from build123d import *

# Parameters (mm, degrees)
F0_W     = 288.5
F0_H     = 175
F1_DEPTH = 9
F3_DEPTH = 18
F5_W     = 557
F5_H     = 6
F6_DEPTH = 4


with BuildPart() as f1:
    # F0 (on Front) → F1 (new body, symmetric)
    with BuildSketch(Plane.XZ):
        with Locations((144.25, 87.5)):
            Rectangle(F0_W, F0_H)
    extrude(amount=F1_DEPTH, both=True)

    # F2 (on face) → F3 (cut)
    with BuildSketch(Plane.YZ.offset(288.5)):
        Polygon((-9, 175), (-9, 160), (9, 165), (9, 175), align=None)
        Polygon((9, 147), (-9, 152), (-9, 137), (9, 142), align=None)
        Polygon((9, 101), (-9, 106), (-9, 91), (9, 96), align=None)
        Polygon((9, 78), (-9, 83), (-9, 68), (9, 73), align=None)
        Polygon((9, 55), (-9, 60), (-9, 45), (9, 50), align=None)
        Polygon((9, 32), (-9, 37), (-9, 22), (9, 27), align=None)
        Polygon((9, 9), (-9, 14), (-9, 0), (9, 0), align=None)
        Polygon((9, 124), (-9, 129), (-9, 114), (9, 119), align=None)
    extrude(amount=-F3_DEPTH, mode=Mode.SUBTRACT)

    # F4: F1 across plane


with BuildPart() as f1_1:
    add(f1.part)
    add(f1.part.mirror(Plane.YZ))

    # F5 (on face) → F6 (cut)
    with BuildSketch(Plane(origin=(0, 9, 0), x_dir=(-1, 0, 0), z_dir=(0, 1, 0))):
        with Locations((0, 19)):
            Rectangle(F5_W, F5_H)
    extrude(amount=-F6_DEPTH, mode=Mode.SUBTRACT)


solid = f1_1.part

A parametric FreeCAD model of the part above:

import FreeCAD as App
import Part
import Sketcher

V = App.Vector
Q = App.Units.Quantity

doc = App.newDocument("Part")
body = doc.addObject("PartDesign::Body", "Body")

# Sketch on XZ plane
sketch1 = body.newObject("Sketcher::SketchObject", "Sketch")
sketch1.AttachmentSupport = (doc.getObject("XZ_Plane"), [""])
sketch1.MapMode = "FlatFace"
sketch1.addGeometry(Part.LineSegment(V(0, 175, 0), V(0, 0, 0)), False)
sketch1.addGeometry(Part.LineSegment(V(0, 0, 0), V(288, 0, 0)), False)
sketch1.addGeometry(Part.LineSegment(V(288, 0, 0), V(288, 175, 0)), False)
sketch1.addGeometry(Part.LineSegment(V(288, 175, 0), V(0, 175, 0)), False)
sketch1.addConstraint(Sketcher.Constraint("Coincident", 0, 2, 1, 1))
sketch1.addConstraint(Sketcher.Constraint("Coincident", 1, 2, 2, 1))
sketch1.addConstraint(Sketcher.Constraint("Coincident", 2, 2, 3, 1))
sketch1.addConstraint(Sketcher.Constraint("Coincident", 3, 2, 0, 1))
sketch1.addConstraint(Sketcher.Constraint("Vertical", 0))
sketch1.addConstraint(Sketcher.Constraint("Horizontal", 1))
sketch1.addConstraint(Sketcher.Constraint("Vertical", 2))
sketch1.addConstraint(Sketcher.Constraint("Horizontal", 3))
sketch1.addConstraint(Sketcher.Constraint("Coincident", 0, 2, -1, 1))
sketch1.addConstraint(Sketcher.Constraint("DistanceY", 0, 2, 0, 1, Q("175 mm")))
sketch1.addConstraint(Sketcher.Constraint("DistanceX", 1, 1, 1, 2, Q("288.5 mm")))
pad1 = body.newObject("PartDesign::Pad", "Pad")
pad1.Profile = sketch1
pad1.Length = 18
pad1.Midplane = True

# Sketch on YZ plane
sketch2 = body.newObject("Sketcher::SketchObject", "Sketch001")
sketch2.AttachmentSupport = (doc.getObject("YZ_Plane"), [""])
sketch2.MapMode = "FlatFace"
sketch2.AttachmentOffset = App.Placement(V(0, 0, 288.5), App.Rotation())
sketch2.addGeometry(Part.LineSegment(V(-9, 175, 0), V(-9, 160, 0)), False)
sketch2.addGeometry(Part.LineSegment(V(-9, 160, 0), V(9, 165, 0)), False)
sketch2.addGeometry(Part.LineSegment(V(9, 165, 0), V(9, 175, 0)), False)
sketch2.addGeometry(Part.LineSegment(V(9, 175, 0), V(-9, 175, 0)), False)
sketch2.addGeometry(Part.LineSegment(V(9, 147, 0), V(-9, 152, 0)), False)
sketch2.addGeometry(Part.LineSegment(V(-9, 152, 0), V(-9, 137, 0)), False)
sketch2.addGeometry(Part.LineSegment(V(-9, 137, 0), V(9, 142, 0)), False)
sketch2.addGeometry(Part.LineSegment(V(9, 142, 0), V(9, 147, 0)), False)
sketch2.addGeometry(Part.LineSegment(V(9, 101, 0), V(-9, 106, 0)), False)
sketch2.addGeometry(Part.LineSegment(V(-9, 106, 0), V(-9, 91, 0)), False)
sketch2.addGeometry(Part.LineSegment(V(-9, 91, 0), V(9, 96, 0)), False)
sketch2.addGeometry(Part.LineSegment(V(9, 96, 0), V(9, 101, 0)), False)
sketch2.addGeometry(Part.LineSegment(V(9, 78, 0), V(-9, 83, 0)), False)
sketch2.addGeometry(Part.LineSegment(V(-9, 83, 0), V(-9, 68, 0)), False)
sketch2.addGeometry(Part.LineSegment(V(-9, 68, 0), V(9, 73, 0)), False)
sketch2.addGeometry(Part.LineSegment(V(9, 73, 0), V(9, 78, 0)), False)
sketch2.addGeometry(Part.LineSegment(V(9, 55, 0), V(-9, 60, 0)), False)
sketch2.addGeometry(Part.LineSegment(V(-9, 60, 0), V(-9, 45, 0)), False)
sketch2.addGeometry(Part.LineSegment(V(-9, 45, 0), V(9, 50, 0)), False)
sketch2.addGeometry(Part.LineSegment(V(9, 50, 0), V(9, 55, 0)), False)
sketch2.addGeometry(Part.LineSegment(V(9, 32, 0), V(-9, 37, 0)), False)
sketch2.addGeometry(Part.LineSegment(V(-9, 37, 0), V(-9, 22, 0)), False)
sketch2.addGeometry(Part.LineSegment(V(-9, 22, 0), V(9, 27, 0)), False)
sketch2.addGeometry(Part.LineSegment(V(9, 27, 0), V(9, 32, 0)), False)
sketch2.addGeometry(Part.LineSegment(V(9, 9, 0), V(-9, 14, 0)), False)
sketch2.addGeometry(Part.LineSegment(V(-9, 14, 0), V(-9, 0, 0)), False)
sketch2.addGeometry(Part.LineSegment(V(-9, 0, 0), V(9, 0, 0)), False)
sketch2.addGeometry(Part.LineSegment(V(9, 0, 0), V(9, 9, 0)), False)
sketch2.addGeometry(Part.LineSegment(V(9, 124, 0), V(-9, 129, 0)), False)
sketch2.addGeometry(Part.LineSegment(V(-9, 129, 0), V(-9, 114, 0)), False)
sketch2.addGeometry(Part.LineSegment(V(-9, 114, 0), V(9, 119, 0)), False)
sketch2.addGeometry(Part.LineSegment(V(9, 119, 0), V(9, 124, 0)), False)
sketch2.addConstraint(Sketcher.Constraint("Coincident", 0, 2, 1, 1))
sketch2.addConstraint(Sketcher.Constraint("Coincident", 1, 2, 2, 1))
sketch2.addConstraint(Sketcher.Constraint("Coincident", 2, 2, 3, 1))
sketch2.addConstraint(Sketcher.Constraint("Coincident", 3, 2, 0, 1))
sketch2.addConstraint(Sketcher.Constraint("Coincident", 4, 2, 5, 1))
sketch2.addConstraint(Sketcher.Constraint("Coincident", 5, 2, 6, 1))
sketch2.addConstraint(Sketcher.Constraint("Coincident", 6, 2, 7, 1))
sketch2.addConstraint(Sketcher.Constraint("Coincident", 7, 2, 4, 1))
sketch2.addConstraint(Sketcher.Constraint("Coincident", 8, 2, 9, 1))
sketch2.addConstraint(Sketcher.Constraint("Coincident", 9, 2, 10, 1))
sketch2.addConstraint(Sketcher.Constraint("Coincident", 10, 2, 11, 1))
sketch2.addConstraint(Sketcher.Constraint("Coincident", 11, 2, 8, 1))
sketch2.addConstraint(Sketcher.Constraint("Coincident", 12, 2, 13, 1))
sketch2.addConstraint(Sketcher.Constraint("Coincident", 13, 2, 14, 1))
sketch2.addConstraint(Sketcher.Constraint("Coincident", 14, 2, 15, 1))
sketch2.addConstraint(Sketcher.Constraint("Coincident", 15, 2, 12, 1))
sketch2.addConstraint(Sketcher.Constraint("Coincident", 16, 2, 17, 1))
sketch2.addConstraint(Sketcher.Constraint("Coincident", 17, 2, 18, 1))
sketch2.addConstraint(Sketcher.Constraint("Coincident", 18, 2, 19, 1))
sketch2.addConstraint(Sketcher.Constraint("Coincident", 19, 2, 16, 1))
sketch2.addConstraint(Sketcher.Constraint("Coincident", 20, 2, 21, 1))
sketch2.addConstraint(Sketcher.Constraint("Coincident", 21, 2, 22, 1))
sketch2.addConstraint(Sketcher.Constraint("Coincident", 22, 2, 23, 1))
sketch2.addConstraint(Sketcher.Constraint("Coincident", 23, 2, 20, 1))
sketch2.addConstraint(Sketcher.Constraint("Coincident", 24, 2, 25, 1))
sketch2.addConstraint(Sketcher.Constraint("Coincident", 25, 2, 26, 1))
sketch2.addConstraint(Sketcher.Constraint("Coincident", 26, 2, 27, 1))
sketch2.addConstraint(Sketcher.Constraint("Coincident", 27, 2, 24, 1))
sketch2.addConstraint(Sketcher.Constraint("Coincident", 28, 2, 29, 1))
sketch2.addConstraint(Sketcher.Constraint("Coincident", 29, 2, 30, 1))
sketch2.addConstraint(Sketcher.Constraint("Coincident", 30, 2, 31, 1))
sketch2.addConstraint(Sketcher.Constraint("Coincident", 31, 2, 28, 1))
sketch2.addConstraint(Sketcher.Constraint("Vertical", 0))
sketch2.addConstraint(Sketcher.Constraint("Vertical", 2))
sketch2.addConstraint(Sketcher.Constraint("Horizontal", 3))
sketch2.addConstraint(Sketcher.Constraint("Vertical", 5))
sketch2.addConstraint(Sketcher.Constraint("Vertical", 7))
sketch2.addConstraint(Sketcher.Constraint("Vertical", 9))
sketch2.addConstraint(Sketcher.Constraint("Vertical", 11))
sketch2.addConstraint(Sketcher.Constraint("Vertical", 13))
sketch2.addConstraint(Sketcher.Constraint("Vertical", 15))
sketch2.addConstraint(Sketcher.Constraint("Vertical", 17))
sketch2.addConstraint(Sketcher.Constraint("Vertical", 19))
sketch2.addConstraint(Sketcher.Constraint("Vertical", 21))
sketch2.addConstraint(Sketcher.Constraint("Vertical", 23))
sketch2.addConstraint(Sketcher.Constraint("Vertical", 25))
sketch2.addConstraint(Sketcher.Constraint("Horizontal", 26))
sketch2.addConstraint(Sketcher.Constraint("Vertical", 27))
sketch2.addConstraint(Sketcher.Constraint("Vertical", 29))
sketch2.addConstraint(Sketcher.Constraint("Vertical", 31))
sketch2.addConstraint(Sketcher.Constraint("Symmetric", 25, 2, 26, 2, -1, 1))
sketch2.addConstraint(Sketcher.Constraint("Parallel", 1, 6))
sketch2.addConstraint(Sketcher.Constraint("Parallel", 4, 8))
sketch2.addConstraint(Sketcher.Constraint("Parallel", 6, 10))
sketch2.addConstraint(Sketcher.Constraint("Parallel", 8, 12))
sketch2.addConstraint(Sketcher.Constraint("Parallel", 10, 14))
sketch2.addConstraint(Sketcher.Constraint("Parallel", 12, 16))
sketch2.addConstraint(Sketcher.Constraint("Parallel", 14, 18))
sketch2.addConstraint(Sketcher.Constraint("Parallel", 16, 20))
sketch2.addConstraint(Sketcher.Constraint("Parallel", 18, 22))
sketch2.addConstraint(Sketcher.Constraint("Parallel", 20, 24))
sketch2.addConstraint(Sketcher.Constraint("Parallel", 24, 28))
sketch2.addConstraint(Sketcher.Constraint("Parallel", 22, 30))
sketch2.addConstraint(Sketcher.Constraint("Vertical", 3, 2, 4, 2))
sketch2.addConstraint(Sketcher.Constraint("Vertical", 2, 2, 6, 2))
sketch2.addConstraint(Sketcher.Constraint("Vertical", 5, 2, 8, 2))
sketch2.addConstraint(Sketcher.Constraint("Vertical", 7, 2, 10, 2))
sketch2.addConstraint(Sketcher.Constraint("Vertical", 9, 2, 12, 2))
sketch2.addConstraint(Sketcher.Constraint("Vertical", 11, 2, 14, 2))
sketch2.addConstraint(Sketcher.Constraint("Vertical", 13, 2, 16, 2))
sketch2.addConstraint(Sketcher.Constraint("Vertical", 15, 2, 18, 2))
sketch2.addConstraint(Sketcher.Constraint("Vertical", 17, 2, 20, 2))
sketch2.addConstraint(Sketcher.Constraint("Vertical", 19, 2, 22, 2))
sketch2.addConstraint(Sketcher.Constraint("Vertical", 21, 2, 24, 2))
sketch2.addConstraint(Sketcher.Constraint("Vertical", 23, 2, 26, 2))
sketch2.addConstraint(Sketcher.Constraint("Vertical", 25, 2, 28, 2))
sketch2.addConstraint(Sketcher.Constraint("Vertical", 27, 2, 30, 2))
sketch2.addConstraint(Sketcher.Constraint("Equal", 0, 5))
sketch2.addConstraint(Sketcher.Constraint("Equal", 5, 9))
sketch2.addConstraint(Sketcher.Constraint("Equal", 9, 13))
sketch2.addConstraint(Sketcher.Constraint("Equal", 13, 17))
sketch2.addConstraint(Sketcher.Constraint("Equal", 17, 21))
sketch2.addConstraint(Sketcher.Constraint("Equal", 21, 29))
sketch2.addConstraint(Sketcher.Constraint("Equal", 1, 4))
sketch2.addConstraint(Sketcher.Constraint("DistanceX", 3, 2, 3, 1, Q("18 mm")))
sketch2.addConstraint(Sketcher.Constraint("DistanceY", 0, 2, 0, 1, Q("15 mm")))
sketch2.addConstraint(Sketcher.Constraint("DistanceY", 2, 1, 2, 2, Q("10 mm")))
sketch2.addConstraint(Sketcher.Constraint("DistanceY", 25, 2, 25, 1, Q("14 mm")))
sketch2.addConstraint(Sketcher.Constraint("DistanceY", -1, 1, 0, 2, Q("160 mm")))
sketch2.addConstraint(Sketcher.Constraint("DistanceY", -1, 1, 4, 2, Q("152 mm")))
sketch2.addConstraint(Sketcher.Constraint("DistanceY", -1, 1, 8, 2, Q("106 mm")))
sketch2.addConstraint(Sketcher.Constraint("DistanceY", -1, 1, 12, 2, Q("83 mm")))
sketch2.addConstraint(Sketcher.Constraint("DistanceY", -1, 1, 16, 2, Q("60 mm")))
sketch2.addConstraint(Sketcher.Constraint("DistanceY", -1, 1, 20, 2, Q("37 mm")))
sketch2.addConstraint(Sketcher.Constraint("DistanceY", -1, 1, 28, 2, Q("129 mm")))
pocket1 = body.newObject("PartDesign::Pocket", "Pocket")
pocket1.Profile = sketch2
pocket1.Length = 18
body2 = doc.addObject("PartDesign::Body", "Body001")
doc.recompute()

body2.BaseFeature = body
doc.recompute()

mirroring = doc.addObject("Part::Mirroring", "Mirroring")
mirroring.Source = body
mirroring.Base = V(0, 0, 0)
mirroring.Normal = V(1, 0, 0)
body3 = doc.addObject("PartDesign::Body", "Body002")
body3.BaseFeature = mirroring
boolean = body2.newObject("PartDesign::Boolean", "Boolean")
boolean.Type = "Fuse"
boolean.addObjects([body3])
doc.recompute()

# Sketch on XZ plane
sketch3 = body2.newObject("Sketcher::SketchObject", "Sketch002")
sketch3.AttachmentSupport = (doc.getObject("XZ_Plane001"), [""])
sketch3.MapMode = "FlatFace"
sketch3.AttachmentOffset = App.Placement(V(0, 0, -9), App.Rotation())
sketch3.addGeometry(Part.LineSegment(V(278, 22, 0), V(278, 16, 0)), False)
sketch3.addGeometry(Part.LineSegment(V(278, 16, 0), V(-278, 16, 0)), False)
sketch3.addGeometry(Part.LineSegment(V(-278, 16, 0), V(-278, 22, 0)), False)
sketch3.addGeometry(Part.LineSegment(V(-278, 22, 0), V(278, 22, 0)), False)
sketch3.addConstraint(Sketcher.Constraint("Coincident", 0, 2, 1, 1))
sketch3.addConstraint(Sketcher.Constraint("Coincident", 1, 2, 2, 1))
sketch3.addConstraint(Sketcher.Constraint("Coincident", 2, 2, 3, 1))
sketch3.addConstraint(Sketcher.Constraint("Coincident", 3, 2, 0, 1))
sketch3.addConstraint(Sketcher.Constraint("Vertical", 0))
sketch3.addConstraint(Sketcher.Constraint("Horizontal", 1))
sketch3.addConstraint(Sketcher.Constraint("Vertical", 2))
sketch3.addConstraint(Sketcher.Constraint("Horizontal", 3))
sketch3.addConstraint(Sketcher.Constraint("DistanceX", 1, 2, 1, 1, Q("557 mm")))
sketch3.addConstraint(Sketcher.Constraint("DistanceY", 0, 2, 0, 1, Q("6 mm")))
sketch3.addConstraint(Sketcher.Constraint("DistanceY", -1, 1, 0, 2, Q("16 mm")))
sketch3.addConstraint(Sketcher.Constraint("DistanceX", -1, 1, 0, 2, Q("278.5 mm")))
pocket2 = body2.newObject("PartDesign::Pocket", "Pocket001")
pocket2.Profile = sketch3
pocket2.Length = 4
pocket2.Reversed = True
mirroring.Visibility = False

doc.recompute()
